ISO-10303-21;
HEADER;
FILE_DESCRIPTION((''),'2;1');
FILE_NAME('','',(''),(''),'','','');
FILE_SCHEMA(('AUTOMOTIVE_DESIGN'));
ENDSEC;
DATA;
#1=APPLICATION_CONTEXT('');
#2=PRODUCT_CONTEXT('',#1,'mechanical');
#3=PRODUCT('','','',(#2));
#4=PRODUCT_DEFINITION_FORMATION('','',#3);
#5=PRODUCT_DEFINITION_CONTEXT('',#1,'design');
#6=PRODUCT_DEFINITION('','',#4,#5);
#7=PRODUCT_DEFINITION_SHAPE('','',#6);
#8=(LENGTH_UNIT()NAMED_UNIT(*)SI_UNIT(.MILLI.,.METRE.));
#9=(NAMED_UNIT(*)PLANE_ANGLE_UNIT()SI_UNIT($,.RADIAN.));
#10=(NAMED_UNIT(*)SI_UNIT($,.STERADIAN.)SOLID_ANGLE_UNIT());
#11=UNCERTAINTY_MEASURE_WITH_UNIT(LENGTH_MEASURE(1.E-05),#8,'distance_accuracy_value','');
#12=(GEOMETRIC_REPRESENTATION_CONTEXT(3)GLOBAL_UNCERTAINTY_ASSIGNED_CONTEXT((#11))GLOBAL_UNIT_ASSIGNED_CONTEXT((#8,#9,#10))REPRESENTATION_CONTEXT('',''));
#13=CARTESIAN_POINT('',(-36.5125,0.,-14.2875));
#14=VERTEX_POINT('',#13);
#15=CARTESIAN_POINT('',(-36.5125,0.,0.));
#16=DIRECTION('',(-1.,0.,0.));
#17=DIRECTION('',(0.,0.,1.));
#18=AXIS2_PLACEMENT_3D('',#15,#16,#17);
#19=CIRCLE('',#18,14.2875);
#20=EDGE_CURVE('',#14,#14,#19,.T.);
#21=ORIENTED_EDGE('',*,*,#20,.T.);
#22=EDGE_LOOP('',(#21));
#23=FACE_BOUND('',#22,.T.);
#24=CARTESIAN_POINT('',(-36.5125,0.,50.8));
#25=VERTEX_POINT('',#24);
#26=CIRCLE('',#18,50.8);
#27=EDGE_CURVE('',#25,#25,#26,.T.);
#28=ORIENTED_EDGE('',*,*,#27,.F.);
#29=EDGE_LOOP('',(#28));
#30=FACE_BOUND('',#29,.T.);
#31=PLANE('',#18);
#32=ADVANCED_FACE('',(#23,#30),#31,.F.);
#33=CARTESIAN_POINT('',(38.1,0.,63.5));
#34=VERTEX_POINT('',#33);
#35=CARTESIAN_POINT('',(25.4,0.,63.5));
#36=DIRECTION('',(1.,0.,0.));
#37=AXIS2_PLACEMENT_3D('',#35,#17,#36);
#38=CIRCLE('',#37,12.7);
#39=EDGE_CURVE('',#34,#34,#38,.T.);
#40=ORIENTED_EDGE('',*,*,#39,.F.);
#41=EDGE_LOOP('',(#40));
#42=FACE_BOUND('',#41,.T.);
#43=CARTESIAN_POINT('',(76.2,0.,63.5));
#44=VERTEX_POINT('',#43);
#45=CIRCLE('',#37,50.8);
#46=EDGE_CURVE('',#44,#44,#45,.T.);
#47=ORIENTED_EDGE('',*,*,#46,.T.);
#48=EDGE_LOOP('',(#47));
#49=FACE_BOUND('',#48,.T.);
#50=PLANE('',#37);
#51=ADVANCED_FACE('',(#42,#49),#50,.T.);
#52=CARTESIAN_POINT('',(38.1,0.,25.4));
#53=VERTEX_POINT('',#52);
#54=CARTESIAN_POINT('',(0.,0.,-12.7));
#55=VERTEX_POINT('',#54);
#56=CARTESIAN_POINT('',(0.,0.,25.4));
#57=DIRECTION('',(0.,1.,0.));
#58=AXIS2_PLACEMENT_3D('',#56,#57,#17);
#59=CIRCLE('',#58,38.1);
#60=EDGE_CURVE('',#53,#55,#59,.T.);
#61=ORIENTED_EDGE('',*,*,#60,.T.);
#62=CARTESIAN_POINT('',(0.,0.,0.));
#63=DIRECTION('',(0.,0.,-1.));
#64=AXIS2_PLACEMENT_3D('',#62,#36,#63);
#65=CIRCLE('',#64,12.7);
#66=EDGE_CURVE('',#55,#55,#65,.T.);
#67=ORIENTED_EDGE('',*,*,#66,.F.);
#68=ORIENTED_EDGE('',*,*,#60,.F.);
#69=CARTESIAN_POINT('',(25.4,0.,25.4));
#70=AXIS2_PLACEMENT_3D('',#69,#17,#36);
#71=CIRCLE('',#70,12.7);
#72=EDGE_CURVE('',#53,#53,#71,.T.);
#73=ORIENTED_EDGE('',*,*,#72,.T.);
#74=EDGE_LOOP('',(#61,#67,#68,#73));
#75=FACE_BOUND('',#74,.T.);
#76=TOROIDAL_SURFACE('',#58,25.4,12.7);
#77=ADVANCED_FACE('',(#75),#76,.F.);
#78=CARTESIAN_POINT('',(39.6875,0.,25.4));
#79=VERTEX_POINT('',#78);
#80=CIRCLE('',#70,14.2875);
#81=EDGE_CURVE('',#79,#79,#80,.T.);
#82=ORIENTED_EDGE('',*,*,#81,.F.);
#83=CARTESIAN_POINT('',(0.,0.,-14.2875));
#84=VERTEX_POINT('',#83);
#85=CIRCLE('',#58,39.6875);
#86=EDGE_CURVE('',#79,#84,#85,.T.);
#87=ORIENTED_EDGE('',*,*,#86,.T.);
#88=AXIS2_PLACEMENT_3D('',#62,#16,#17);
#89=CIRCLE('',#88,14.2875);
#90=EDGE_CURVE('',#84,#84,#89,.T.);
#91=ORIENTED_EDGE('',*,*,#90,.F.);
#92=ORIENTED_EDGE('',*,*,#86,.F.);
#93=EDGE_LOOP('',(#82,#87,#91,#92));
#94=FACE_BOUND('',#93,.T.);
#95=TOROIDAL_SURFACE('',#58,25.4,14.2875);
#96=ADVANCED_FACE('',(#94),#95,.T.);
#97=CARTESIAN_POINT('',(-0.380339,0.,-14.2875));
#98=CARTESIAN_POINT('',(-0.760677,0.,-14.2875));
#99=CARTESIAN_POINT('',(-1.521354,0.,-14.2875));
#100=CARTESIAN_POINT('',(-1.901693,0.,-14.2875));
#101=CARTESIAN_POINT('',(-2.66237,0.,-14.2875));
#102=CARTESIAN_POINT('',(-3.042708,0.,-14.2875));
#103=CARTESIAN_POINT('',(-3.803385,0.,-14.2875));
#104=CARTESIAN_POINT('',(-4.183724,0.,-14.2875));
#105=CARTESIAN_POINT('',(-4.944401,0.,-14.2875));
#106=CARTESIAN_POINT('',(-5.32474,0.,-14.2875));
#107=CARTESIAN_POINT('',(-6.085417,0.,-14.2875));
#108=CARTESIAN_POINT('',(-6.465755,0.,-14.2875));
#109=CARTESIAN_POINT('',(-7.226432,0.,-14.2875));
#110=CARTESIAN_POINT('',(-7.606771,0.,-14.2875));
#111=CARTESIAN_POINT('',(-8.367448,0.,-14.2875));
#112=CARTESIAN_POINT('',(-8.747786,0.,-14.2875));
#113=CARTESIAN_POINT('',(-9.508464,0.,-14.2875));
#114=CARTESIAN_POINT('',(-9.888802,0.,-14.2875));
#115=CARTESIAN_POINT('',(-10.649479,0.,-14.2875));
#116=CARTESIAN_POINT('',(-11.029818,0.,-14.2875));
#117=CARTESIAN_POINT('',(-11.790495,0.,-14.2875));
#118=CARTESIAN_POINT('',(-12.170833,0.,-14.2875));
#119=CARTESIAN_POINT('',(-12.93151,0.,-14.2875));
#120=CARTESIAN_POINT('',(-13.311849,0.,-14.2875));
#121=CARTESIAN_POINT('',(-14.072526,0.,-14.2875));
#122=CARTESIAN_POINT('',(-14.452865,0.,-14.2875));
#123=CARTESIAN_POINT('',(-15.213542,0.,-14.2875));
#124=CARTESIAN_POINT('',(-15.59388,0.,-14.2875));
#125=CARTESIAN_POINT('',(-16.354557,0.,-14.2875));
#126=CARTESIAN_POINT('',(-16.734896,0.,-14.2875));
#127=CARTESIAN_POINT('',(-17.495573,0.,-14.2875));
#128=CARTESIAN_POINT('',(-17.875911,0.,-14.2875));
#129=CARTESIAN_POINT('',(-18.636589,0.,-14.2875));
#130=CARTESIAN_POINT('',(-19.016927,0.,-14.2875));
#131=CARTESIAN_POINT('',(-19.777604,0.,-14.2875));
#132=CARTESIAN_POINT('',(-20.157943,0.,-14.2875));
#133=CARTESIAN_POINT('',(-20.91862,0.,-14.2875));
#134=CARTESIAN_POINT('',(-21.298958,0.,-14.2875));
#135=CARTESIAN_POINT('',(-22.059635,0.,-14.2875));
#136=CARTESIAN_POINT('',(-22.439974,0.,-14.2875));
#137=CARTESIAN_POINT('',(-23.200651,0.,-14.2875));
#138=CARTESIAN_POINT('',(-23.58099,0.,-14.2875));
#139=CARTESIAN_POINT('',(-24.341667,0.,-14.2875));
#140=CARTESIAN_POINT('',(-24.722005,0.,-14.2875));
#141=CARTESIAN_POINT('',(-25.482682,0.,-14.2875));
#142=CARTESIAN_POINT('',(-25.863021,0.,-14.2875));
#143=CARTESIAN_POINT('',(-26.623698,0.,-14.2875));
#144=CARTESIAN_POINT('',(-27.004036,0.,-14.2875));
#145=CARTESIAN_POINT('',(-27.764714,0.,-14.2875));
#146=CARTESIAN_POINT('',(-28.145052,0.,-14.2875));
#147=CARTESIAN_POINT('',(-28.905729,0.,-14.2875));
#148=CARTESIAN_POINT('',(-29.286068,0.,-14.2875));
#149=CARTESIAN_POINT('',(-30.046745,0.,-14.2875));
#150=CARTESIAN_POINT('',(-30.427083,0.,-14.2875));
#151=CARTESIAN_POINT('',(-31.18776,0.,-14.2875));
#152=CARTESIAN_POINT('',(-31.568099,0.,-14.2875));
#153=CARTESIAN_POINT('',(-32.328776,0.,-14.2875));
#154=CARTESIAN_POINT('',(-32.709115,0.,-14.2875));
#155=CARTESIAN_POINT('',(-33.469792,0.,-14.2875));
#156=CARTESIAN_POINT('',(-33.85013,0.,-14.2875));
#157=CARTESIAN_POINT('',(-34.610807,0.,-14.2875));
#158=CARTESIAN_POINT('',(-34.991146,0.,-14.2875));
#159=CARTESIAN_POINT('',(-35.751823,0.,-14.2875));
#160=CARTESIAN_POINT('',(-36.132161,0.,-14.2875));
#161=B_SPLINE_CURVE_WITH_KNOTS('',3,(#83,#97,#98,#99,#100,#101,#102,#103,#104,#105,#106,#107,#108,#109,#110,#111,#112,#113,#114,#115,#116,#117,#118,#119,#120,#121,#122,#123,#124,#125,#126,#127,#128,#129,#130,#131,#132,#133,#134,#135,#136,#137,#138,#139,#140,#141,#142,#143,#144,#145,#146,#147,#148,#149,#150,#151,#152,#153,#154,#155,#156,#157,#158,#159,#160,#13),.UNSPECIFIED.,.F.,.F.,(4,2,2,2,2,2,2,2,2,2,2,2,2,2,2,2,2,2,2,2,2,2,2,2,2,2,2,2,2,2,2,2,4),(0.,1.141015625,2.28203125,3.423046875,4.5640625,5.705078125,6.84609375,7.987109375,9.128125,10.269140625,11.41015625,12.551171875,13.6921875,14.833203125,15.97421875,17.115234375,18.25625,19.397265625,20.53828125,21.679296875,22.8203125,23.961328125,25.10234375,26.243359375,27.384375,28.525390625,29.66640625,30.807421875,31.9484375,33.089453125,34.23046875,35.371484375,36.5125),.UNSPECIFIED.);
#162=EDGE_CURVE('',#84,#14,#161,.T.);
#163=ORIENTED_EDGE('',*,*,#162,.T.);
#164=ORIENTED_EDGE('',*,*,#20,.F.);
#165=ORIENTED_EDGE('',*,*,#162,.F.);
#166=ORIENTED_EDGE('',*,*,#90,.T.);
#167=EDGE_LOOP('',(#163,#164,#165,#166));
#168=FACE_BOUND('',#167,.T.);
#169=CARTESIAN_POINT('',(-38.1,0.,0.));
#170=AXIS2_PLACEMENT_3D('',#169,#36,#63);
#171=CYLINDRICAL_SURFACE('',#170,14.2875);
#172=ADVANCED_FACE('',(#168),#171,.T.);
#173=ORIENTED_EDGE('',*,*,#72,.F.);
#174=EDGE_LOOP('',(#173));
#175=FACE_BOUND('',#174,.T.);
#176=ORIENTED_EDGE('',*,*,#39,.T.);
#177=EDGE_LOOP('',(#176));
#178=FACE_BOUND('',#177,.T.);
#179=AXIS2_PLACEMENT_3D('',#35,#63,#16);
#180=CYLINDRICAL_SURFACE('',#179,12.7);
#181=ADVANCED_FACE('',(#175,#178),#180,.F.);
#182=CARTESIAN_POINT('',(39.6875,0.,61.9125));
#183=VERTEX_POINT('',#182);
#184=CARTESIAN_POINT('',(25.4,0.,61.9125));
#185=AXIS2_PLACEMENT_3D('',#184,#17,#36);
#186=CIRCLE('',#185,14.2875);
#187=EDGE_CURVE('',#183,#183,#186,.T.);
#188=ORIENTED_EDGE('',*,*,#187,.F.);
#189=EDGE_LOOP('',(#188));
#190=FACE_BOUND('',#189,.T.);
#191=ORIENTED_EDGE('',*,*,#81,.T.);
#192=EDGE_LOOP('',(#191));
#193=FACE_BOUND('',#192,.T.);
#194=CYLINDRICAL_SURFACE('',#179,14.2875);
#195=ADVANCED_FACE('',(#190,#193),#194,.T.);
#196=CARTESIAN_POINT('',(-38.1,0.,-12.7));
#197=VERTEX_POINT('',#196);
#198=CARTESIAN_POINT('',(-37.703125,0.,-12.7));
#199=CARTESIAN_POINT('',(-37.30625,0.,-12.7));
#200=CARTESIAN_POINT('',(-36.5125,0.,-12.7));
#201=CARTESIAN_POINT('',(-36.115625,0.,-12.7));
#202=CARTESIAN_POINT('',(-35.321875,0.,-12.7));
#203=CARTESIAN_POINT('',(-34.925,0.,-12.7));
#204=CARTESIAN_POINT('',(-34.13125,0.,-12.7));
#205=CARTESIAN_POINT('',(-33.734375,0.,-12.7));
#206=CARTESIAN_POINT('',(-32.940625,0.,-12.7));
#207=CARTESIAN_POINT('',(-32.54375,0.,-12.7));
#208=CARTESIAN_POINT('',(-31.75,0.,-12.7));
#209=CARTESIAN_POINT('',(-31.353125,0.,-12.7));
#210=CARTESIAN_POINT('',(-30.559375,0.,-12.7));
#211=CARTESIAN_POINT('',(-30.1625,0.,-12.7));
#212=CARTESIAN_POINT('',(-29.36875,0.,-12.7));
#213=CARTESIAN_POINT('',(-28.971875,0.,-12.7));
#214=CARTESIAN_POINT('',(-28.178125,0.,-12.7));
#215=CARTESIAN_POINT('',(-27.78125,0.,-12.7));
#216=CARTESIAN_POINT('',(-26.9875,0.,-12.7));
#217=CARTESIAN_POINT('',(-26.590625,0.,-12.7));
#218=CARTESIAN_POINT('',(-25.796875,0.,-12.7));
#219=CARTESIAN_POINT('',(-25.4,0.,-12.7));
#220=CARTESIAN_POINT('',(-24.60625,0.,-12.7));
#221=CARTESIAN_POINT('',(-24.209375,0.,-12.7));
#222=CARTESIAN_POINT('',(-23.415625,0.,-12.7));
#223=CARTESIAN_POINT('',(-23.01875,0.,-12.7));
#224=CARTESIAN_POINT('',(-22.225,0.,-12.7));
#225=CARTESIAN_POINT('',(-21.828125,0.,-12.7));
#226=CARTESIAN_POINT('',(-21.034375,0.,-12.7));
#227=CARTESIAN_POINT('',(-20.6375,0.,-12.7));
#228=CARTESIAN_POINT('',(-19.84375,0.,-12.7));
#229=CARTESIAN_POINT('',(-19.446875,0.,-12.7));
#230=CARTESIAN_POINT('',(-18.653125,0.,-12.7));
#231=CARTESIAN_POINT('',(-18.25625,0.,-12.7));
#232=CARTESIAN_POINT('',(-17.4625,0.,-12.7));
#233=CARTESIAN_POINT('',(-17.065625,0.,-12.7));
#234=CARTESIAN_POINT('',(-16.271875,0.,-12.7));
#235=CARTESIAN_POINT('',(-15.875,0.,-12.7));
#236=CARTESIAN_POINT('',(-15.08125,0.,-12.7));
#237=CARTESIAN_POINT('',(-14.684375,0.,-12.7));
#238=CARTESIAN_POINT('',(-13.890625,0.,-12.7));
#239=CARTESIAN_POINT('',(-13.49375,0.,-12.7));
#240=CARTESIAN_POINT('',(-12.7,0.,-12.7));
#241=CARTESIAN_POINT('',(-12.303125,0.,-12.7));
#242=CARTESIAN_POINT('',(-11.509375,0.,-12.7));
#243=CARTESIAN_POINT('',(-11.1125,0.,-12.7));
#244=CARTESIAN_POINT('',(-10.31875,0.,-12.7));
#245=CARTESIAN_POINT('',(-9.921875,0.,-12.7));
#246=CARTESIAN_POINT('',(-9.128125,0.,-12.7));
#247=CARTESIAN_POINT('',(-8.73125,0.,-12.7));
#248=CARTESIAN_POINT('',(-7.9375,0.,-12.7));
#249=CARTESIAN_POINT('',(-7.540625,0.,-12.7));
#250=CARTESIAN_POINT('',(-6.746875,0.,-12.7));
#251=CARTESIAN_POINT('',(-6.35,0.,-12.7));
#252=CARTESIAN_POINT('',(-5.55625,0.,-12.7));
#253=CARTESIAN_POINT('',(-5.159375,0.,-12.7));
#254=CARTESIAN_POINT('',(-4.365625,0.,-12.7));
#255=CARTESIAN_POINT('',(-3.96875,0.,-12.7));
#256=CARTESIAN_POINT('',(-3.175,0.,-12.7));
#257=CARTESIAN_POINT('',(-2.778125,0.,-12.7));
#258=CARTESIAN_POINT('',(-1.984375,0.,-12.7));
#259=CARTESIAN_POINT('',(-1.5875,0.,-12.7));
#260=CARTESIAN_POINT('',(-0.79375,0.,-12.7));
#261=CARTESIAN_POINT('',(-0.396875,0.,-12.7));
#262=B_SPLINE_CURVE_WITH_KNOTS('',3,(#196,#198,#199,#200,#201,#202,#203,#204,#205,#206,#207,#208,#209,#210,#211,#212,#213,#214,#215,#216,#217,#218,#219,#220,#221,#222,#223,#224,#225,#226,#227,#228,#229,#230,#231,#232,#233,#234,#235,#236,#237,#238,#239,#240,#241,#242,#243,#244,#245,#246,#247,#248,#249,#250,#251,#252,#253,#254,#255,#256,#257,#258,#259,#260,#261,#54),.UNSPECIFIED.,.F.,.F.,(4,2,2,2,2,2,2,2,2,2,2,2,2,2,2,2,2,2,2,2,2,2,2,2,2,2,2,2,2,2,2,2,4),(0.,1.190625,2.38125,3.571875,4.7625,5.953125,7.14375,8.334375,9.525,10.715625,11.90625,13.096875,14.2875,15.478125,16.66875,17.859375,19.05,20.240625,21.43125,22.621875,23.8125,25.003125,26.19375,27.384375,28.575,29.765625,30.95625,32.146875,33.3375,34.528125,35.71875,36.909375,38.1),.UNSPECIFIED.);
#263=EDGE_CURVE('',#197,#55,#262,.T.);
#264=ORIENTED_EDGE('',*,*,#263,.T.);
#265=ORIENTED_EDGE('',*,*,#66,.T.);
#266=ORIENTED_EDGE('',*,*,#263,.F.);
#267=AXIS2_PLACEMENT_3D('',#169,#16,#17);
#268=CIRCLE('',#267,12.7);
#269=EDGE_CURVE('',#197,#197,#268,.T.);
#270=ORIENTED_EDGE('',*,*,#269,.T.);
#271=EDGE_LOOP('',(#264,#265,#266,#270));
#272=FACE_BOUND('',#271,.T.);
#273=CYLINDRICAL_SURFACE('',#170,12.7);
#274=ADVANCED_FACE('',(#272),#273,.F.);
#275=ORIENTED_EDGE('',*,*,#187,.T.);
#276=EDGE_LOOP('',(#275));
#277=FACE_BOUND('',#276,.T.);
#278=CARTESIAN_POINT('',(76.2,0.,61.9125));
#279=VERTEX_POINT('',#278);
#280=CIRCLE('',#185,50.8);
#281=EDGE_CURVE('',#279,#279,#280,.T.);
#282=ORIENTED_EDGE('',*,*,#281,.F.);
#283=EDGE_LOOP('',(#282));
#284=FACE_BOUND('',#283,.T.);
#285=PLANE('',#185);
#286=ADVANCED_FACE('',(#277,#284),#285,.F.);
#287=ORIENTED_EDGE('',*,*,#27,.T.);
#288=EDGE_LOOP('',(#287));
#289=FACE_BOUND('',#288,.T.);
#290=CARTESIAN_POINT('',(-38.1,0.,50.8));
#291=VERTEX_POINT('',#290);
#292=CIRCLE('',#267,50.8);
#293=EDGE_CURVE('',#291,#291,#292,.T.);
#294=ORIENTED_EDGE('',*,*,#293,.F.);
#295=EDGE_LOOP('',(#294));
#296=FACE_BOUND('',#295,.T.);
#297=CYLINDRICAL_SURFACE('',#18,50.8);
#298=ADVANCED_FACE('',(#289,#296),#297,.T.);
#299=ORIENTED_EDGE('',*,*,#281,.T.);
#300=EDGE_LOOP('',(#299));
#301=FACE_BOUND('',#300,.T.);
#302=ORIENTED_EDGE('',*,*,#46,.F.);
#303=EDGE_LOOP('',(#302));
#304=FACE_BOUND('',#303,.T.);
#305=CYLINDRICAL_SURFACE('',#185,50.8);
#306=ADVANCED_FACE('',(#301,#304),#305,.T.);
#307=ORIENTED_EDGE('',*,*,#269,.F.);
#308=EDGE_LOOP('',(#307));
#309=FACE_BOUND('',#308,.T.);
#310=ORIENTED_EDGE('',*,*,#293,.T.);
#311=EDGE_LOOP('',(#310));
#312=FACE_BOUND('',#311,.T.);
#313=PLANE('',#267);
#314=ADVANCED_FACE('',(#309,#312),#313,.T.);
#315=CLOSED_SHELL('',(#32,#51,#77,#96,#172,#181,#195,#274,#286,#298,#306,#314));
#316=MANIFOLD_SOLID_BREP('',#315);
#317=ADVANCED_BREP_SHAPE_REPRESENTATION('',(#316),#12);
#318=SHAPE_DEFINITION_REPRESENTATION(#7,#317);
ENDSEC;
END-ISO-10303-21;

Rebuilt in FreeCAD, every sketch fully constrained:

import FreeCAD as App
import Part
import Sketcher
Q = App.Units.Quantity

doc = App.newDocument("Part")
body = doc.addObject("PartDesign::Body", "Body")

sketch1 = body.newObject("Sketcher::SketchObject", "Sketch")
sketch1.AttachmentSupport = (doc.getObject("YZ_Plane"), [""])
sketch1.MapMode = "FlatFace"
sketch1.addGeometry([
    Part.Circle(App.Vector(0, 0, 0), App.Vector(0, 0, 1), 14),
    Part.Circle(App.Vector(0, 0, 0), App.Vector(0, 0, 1), 13),
], False)
sketch1.addGeometry(Part.LineSegment(App.Vector(0, 25, 0), App.Vector(-10, 25, 0)), True)
sketch1.addConstraint([
    Sketcher.Constraint("Horizontal", 2),
    Sketcher.Constraint("Coincident", 0, 3, -1, 1),
    Sketcher.Constraint("Coincident", 1, 3, -1, 1),
    Sketcher.Constraint("PointOnObject", 2, 1, -2),
    Sketcher.Constraint("Diameter", 1, Q("1 in")),
    Sketcher.Constraint("Diameter", 0, Q("1.125 in")),
    Sketcher.Constraint("DistanceY", -1, 1, 2, 1, Q("1 in")),
    Sketcher.Constraint("DistanceX", 2, 2, 2, 1, Q("10 mm")),
])
revolution = body.newObject("PartDesign::Revolution", "Revolution")
revolution.Profile = sketch1
revolution.ReferenceAxis = (sketch1, ["Axis0"])
revolution.Angle = 90

sketch2 = body.newObject("Sketcher::SketchObject", "Sketch001")
sketch2.AttachmentSupport = (doc.getObject("XY_Plane"), [""])
sketch2.MapMode = "FlatFace"
sketch2.AttachmentOffset = App.Placement(App.Vector(0, 0, 1 * 25.4), App.Rotation())
sketch2.addGeometry([
    Part.Circle(App.Vector(25, 0, 0), App.Vector(0, 0, 1), 14),
    Part.Circle(App.Vector(25, 0, 0), App.Vector(0, 0, 1), 13),
], False)
sketch2.addConstraint([
    Sketcher.Constraint("Coincident", 1, 3, 0, 3),
    Sketcher.Constraint("PointOnObject", 0, 3, -1),
    Sketcher.Constraint("Diameter", 1, Q("1 in")),
    Sketcher.Constraint("Diameter", 0, Q("1.125 in")),
    Sketcher.Constraint("DistanceX", -1, 1, 0, 3, Q("1 in")),
])
pad1 = body.newObject("PartDesign::Pad", "Pad")
pad1.Profile = sketch2
pad1.Length = Q("1.5 in")

sketch3 = body.newObject("Sketcher::SketchObject", "Sketch002")
sketch3.AttachmentSupport = (doc.getObject("YZ_Plane"), [""])
sketch3.MapMode = "FlatFace"
sketch3.addGeometry([
    Part.Circle(App.Vector(0, 0, 0), App.Vector(0, 0, 1), 14),
    Part.Circle(App.Vector(0, 0, 0), App.Vector(0, 0, 1), 13),
], False)
sketch3.addConstraint([
    Sketcher.Constraint("Coincident", 0, 3, -1, 1),
    Sketcher.Constraint("Coincident", 1, 3, -1, 1),
    Sketcher.Constraint("Diameter", 1, Q("1 in")),
    Sketcher.Constraint("Diameter", 0, Q("1.125 in")),
])
pad2 = body.newObject("PartDesign::Pad", "Pad001")
pad2.Profile = sketch3
pad2.Length = Q("1.5 in")
pad2.Reversed = True

sketch4 = body.newObject("Sketcher::SketchObject", "Sketch003")
sketch4.AttachmentSupport = (doc.getObject("YZ_Plane"), [""])
sketch4.MapMode = "FlatFace"
sketch4.AttachmentOffset = App.Placement(App.Vector(0, 0, -1.4375 * 25.4), App.Rotation())
sketch4.addGeometry([
    Part.Circle(App.Vector(0, 0, 0), App.Vector(0, 0, 1), 51),
    Part.Circle(App.Vector(0, 0, 0), App.Vector(0, 0, 1), 13),
], False)
sketch4.addConstraint([
    Sketcher.Constraint("Coincident", 0, 3, -1, 1),
    Sketcher.Constraint("Coincident", 1, 3, -1, 1),
    Sketcher.Constraint("Diameter", 0, Q("4 in")),
    Sketcher.Constraint("Diameter", 1, Q("1 in")),
])
pad3 = body.newObject("PartDesign::Pad", "Pad002")
pad3.Profile = sketch4
pad3.Length = Q("0.0625 in")
pad3.Reversed = True

sketch5 = body.newObject("Sketcher::SketchObject", "Sketch004")
sketch5.AttachmentSupport = (doc.getObject("XY_Plane"), [""])
sketch5.MapMode = "FlatFace"
sketch5.AttachmentOffset = App.Placement(App.Vector(0, 0, 2.4375 * 25.4), App.Rotation())
sketch5.addGeometry([
    Part.Circle(App.Vector(25, 0, 0), App.Vector(0, 0, 1), 51),
    Part.Circle(App.Vector(25, 0, 0), App.Vector(0, 0, 1), 13),
], False)
sketch5.addConstraint([
    Sketcher.Constraint("Coincident", 1, 3, 0, 3),
    Sketcher.Constraint("PointOnObject", 0, 3, -1),
    Sketcher.Constraint("Diameter", 0, Q("4 in")),
    Sketcher.Constraint("Diameter", 1, Q("1 in")),
    Sketcher.Constraint("DistanceX", -1, 1, 0, 3, Q("1 in")),
])
pad4 = body.newObject("PartDesign::Pad", "Pad003")
pad4.Profile = sketch5
pad4.Length = Q("0.0625 in")

doc.recompute()
